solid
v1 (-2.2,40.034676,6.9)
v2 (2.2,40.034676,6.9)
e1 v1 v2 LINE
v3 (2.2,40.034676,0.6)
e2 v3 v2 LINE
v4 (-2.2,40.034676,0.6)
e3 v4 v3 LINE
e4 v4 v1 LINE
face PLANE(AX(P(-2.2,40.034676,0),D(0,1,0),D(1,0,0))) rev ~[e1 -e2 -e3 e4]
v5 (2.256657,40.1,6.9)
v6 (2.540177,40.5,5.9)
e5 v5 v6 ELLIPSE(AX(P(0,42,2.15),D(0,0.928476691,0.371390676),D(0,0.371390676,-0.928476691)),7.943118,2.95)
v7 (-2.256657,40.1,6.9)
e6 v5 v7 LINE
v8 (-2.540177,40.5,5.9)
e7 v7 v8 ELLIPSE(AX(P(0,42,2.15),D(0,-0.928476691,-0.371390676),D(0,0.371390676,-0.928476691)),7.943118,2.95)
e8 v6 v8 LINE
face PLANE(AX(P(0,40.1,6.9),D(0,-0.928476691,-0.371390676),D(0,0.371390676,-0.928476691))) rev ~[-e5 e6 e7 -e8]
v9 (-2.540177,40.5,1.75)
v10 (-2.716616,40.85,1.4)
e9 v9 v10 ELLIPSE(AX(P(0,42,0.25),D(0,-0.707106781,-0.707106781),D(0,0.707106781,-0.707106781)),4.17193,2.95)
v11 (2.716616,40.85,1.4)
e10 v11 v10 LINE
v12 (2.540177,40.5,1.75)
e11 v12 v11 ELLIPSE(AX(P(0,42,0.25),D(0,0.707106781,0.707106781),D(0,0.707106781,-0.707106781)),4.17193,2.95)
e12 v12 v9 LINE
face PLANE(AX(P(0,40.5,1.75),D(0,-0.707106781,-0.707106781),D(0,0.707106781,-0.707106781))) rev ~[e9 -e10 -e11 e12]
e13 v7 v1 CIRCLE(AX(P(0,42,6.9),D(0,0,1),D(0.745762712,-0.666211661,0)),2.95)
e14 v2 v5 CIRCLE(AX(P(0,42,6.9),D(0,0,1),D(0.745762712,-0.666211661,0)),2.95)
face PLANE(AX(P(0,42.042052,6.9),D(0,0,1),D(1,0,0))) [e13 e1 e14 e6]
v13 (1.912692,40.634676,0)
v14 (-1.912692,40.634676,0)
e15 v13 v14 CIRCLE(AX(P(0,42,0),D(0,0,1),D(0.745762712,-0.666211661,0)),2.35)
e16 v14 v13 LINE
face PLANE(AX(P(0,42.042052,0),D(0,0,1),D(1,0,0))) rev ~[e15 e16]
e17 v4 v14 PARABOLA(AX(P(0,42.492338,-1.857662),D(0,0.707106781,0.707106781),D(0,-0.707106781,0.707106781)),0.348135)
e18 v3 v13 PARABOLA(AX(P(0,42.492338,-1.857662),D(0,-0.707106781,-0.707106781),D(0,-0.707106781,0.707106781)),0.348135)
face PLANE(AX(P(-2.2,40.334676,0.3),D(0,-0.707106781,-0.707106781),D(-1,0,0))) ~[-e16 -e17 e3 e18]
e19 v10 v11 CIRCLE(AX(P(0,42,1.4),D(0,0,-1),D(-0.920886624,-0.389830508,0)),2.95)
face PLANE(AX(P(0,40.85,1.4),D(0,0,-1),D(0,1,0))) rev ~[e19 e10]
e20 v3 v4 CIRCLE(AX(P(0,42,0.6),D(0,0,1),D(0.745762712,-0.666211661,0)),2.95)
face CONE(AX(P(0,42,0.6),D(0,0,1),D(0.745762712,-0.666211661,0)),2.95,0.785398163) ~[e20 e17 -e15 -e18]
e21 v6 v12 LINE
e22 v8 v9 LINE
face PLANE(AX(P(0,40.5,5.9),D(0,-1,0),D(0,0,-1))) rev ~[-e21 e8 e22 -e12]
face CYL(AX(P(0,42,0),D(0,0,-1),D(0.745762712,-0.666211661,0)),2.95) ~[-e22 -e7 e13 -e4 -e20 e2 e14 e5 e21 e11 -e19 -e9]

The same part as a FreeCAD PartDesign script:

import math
import FreeCAD as App
import Part
import Sketcher

V = App.Vector
Q = App.Units.Quantity


def edges_at(feature, points):
    """Names of the edges that pass closest to the given points."""
    edges = feature.Shape.Edges
    near = lambda p: min(range(len(edges)), key=lambda i: edges[i].distToShape(Part.Vertex(*p))[0])
    return sorted({f"Edge{near(p) + 1}" for p in points})

doc = App.newDocument("Part")
params = doc.addObject("Spreadsheet::Sheet", "Params")
for row, (alias, value) in enumerate([
    ("sketch1_radius", "2.95 mm"),
    ("sketch1_width", "4.4 mm"),
    ("pad1_length", "6.9 mm"),
    ("sketch2_width", "6.9 mm"),
    ("sketch2_height", "5.5 mm"),
    ("sketch2_width2", "6.15 mm"),
    ("sketch2_height2", "4.15 mm"),
    ("chamfer_size", "0.6 mm"),
], start=1):
    params.set(f"A{row}", alias)
    params.set(f"B{row}", "=" + value)
    params.setAlias(f"B{row}", alias)

body = doc.addObject("PartDesign::Body", "Body")

# Sketch on XY plane
sketch1 = body.newObject("Sketcher::SketchObject", "Sketch")
sketch1.AttachmentSupport = (doc.getObject("XY_Plane"), [""])
sketch1.MapMode = "FlatFace"
sketch1.addGeometry(Part.ArcOfCircle(Part.Circle(V(0, 0, 0), V(0, 0, 1), 2.95), math.radians(-41.775348), math.radians(221.775348)), False)
sketch1.addGeometry(Part.LineSegment(V(-2.2, -1.965324, 0), V(2.2, -1.965324, 0)), False)
sketch1.addConstraint(Sketcher.Constraint("Coincident", 0, 1, 1, 2))
sketch1.addConstraint(Sketcher.Constraint("Coincident", 1, 1, 0, 2))
sketch1.addConstraint(Sketcher.Constraint("Horizontal", 1))
sketch1.addConstraint(Sketcher.Constraint("Coincident", 0, 3, -1, 1))
sketch1.addConstraint(Sketcher.Constraint("Radius", 0, Q("2.95 mm")))
sketch1.addConstraint(Sketcher.Constraint("DistanceX", 1, 1, 1, 2, Q("4.4 mm")))
sketch1.setExpression("Constraints[4]", "Params.sketch1_radius")
sketch1.setExpression("Constraints[5]", "Params.sketch1_width")
pad1 = body.newObject("PartDesign::Pad", "Pad")
pad1.Profile = sketch1
pad1.setExpression("Length", "Params.pad1_length")

# Sketch on YZ plane
sketch2 = body.newObject("Sketcher::SketchObject", "Sketch001")
sketch2.AttachmentSupport = (doc.getObject("YZ_Plane"), [""])
sketch2.MapMode = "FlatFace"
sketch2.addGeometry(Part.LineSegment(V(-1.9, 6.9, 0), V(-1.5, 5.9, 0)), False)
sketch2.addGeometry(Part.LineSegment(V(-1.5, 5.9, 0), V(-1.5, 1.75, 0)), False)
sketch2.addGeometry(Part.LineSegment(V(-1.5, 1.75, 0), V(-1.15, 1.4, 0)), False)
sketch2.addGeometry(Part.LineSegment(V(-1.15, 1.4, 0), V(5, 1.4, 0)), False)
sketch2.addGeometry(Part.LineSegment(V(5, 1.4, 0), V(5, 6.9, 0)), False)
sketch2.addGeometry(Part.LineSegment(V(5, 6.9, 0), V(-1.9, 6.9, 0)), False)
sketch2.addConstraint(Sketcher.Constraint("Coincident", 0, 2, 1, 1))
sketch2.addConstraint(Sketcher.Constraint("Coincident", 1, 2, 2, 1))
sketch2.addConstraint(Sketcher.Constraint("Coincident", 2, 2, 3, 1))
sketch2.addConstraint(Sketcher.Constraint("Coincident", 3, 2, 4, 1))
sketch2.addConstraint(Sketcher.Constraint("Coincident", 4, 2, 5, 1))
sketch2.addConstraint(Sketcher.Constraint("Coincident", 5, 2, 0, 1))
sketch2.addConstraint(Sketcher.Constraint("Vertical", 1))
sketch2.addConstraint(Sketcher.Constraint("Horizontal", 3))
sketch2.addConstraint(Sketcher.Constraint("Vertical", 4))
sketch2.addConstraint(Sketcher.Constraint("Horizontal", 5))
sketch2.addConstraint(Sketcher.Constraint("Angle", 2, Q("-45 deg")))
sketch2.addConstraint(Sketcher.Constraint("DistanceX", 5, 2, 5, 1, Q("6.9 mm")))
sketch2.addConstraint(Sketcher.Constraint("DistanceY", 4, 1, 4, 2, Q("5.5 mm")))
sketch2.addConstraint(Sketcher.Constraint("DistanceX", -1, 1, 3, 2, Q("5 mm")))
sketch2.addConstraint(Sketcher.Constraint("DistanceY", 0, 2, 4, 2, Q("1 mm")))
sketch2.addConstraint(Sketcher.Constraint("DistanceX", 3, 1, 3, 2, Q("6.15 mm")))
sketch2.addConstraint(Sketcher.Constraint("DistanceY", 1, 2, 1, 1, Q("4.15 mm")))
sketch2.addConstraint(Sketcher.Constraint("DistanceY", -1, 1, 0, 2, Q("5.9 mm")))
sketch2.setExpression("Constraints[11]", "Params.sketch2_width")
sketch2.setExpression("Constraints[12]", "Params.sketch2_height")
sketch2.setExpression("Constraints[15]", "Params.sketch2_width2")
sketch2.setExpression("Constraints[16]", "Params.sketch2_height2")
pocket1 = body.newObject("PartDesign::Pocket", "Pocket")
pocket1.Profile = sketch2
pocket1.Type = "ThroughAll"
pocket1.Midplane = True
doc.recompute()

chamfer = body.newObject("PartDesign::Chamfer", "Chamfer")
chamfer.Base = (pocket1, edges_at(pocket1, [(0, 2.95, 0), (0, -1.965, 0)]))
chamfer.setExpression("Size", "Params.chamfer_size")
body2 = doc.addObject("PartDesign::Body", "Body001")
doc.recompute()

body.Placement = App.Placement(V(0, 42, 0), App.Rotation(V(0, 0, 1), 0))
boolean = body2.newObject("PartDesign::Boolean", "Boolean")
boolean.Type = "Fuse"
boolean.addObjects([body])

doc.recompute()
